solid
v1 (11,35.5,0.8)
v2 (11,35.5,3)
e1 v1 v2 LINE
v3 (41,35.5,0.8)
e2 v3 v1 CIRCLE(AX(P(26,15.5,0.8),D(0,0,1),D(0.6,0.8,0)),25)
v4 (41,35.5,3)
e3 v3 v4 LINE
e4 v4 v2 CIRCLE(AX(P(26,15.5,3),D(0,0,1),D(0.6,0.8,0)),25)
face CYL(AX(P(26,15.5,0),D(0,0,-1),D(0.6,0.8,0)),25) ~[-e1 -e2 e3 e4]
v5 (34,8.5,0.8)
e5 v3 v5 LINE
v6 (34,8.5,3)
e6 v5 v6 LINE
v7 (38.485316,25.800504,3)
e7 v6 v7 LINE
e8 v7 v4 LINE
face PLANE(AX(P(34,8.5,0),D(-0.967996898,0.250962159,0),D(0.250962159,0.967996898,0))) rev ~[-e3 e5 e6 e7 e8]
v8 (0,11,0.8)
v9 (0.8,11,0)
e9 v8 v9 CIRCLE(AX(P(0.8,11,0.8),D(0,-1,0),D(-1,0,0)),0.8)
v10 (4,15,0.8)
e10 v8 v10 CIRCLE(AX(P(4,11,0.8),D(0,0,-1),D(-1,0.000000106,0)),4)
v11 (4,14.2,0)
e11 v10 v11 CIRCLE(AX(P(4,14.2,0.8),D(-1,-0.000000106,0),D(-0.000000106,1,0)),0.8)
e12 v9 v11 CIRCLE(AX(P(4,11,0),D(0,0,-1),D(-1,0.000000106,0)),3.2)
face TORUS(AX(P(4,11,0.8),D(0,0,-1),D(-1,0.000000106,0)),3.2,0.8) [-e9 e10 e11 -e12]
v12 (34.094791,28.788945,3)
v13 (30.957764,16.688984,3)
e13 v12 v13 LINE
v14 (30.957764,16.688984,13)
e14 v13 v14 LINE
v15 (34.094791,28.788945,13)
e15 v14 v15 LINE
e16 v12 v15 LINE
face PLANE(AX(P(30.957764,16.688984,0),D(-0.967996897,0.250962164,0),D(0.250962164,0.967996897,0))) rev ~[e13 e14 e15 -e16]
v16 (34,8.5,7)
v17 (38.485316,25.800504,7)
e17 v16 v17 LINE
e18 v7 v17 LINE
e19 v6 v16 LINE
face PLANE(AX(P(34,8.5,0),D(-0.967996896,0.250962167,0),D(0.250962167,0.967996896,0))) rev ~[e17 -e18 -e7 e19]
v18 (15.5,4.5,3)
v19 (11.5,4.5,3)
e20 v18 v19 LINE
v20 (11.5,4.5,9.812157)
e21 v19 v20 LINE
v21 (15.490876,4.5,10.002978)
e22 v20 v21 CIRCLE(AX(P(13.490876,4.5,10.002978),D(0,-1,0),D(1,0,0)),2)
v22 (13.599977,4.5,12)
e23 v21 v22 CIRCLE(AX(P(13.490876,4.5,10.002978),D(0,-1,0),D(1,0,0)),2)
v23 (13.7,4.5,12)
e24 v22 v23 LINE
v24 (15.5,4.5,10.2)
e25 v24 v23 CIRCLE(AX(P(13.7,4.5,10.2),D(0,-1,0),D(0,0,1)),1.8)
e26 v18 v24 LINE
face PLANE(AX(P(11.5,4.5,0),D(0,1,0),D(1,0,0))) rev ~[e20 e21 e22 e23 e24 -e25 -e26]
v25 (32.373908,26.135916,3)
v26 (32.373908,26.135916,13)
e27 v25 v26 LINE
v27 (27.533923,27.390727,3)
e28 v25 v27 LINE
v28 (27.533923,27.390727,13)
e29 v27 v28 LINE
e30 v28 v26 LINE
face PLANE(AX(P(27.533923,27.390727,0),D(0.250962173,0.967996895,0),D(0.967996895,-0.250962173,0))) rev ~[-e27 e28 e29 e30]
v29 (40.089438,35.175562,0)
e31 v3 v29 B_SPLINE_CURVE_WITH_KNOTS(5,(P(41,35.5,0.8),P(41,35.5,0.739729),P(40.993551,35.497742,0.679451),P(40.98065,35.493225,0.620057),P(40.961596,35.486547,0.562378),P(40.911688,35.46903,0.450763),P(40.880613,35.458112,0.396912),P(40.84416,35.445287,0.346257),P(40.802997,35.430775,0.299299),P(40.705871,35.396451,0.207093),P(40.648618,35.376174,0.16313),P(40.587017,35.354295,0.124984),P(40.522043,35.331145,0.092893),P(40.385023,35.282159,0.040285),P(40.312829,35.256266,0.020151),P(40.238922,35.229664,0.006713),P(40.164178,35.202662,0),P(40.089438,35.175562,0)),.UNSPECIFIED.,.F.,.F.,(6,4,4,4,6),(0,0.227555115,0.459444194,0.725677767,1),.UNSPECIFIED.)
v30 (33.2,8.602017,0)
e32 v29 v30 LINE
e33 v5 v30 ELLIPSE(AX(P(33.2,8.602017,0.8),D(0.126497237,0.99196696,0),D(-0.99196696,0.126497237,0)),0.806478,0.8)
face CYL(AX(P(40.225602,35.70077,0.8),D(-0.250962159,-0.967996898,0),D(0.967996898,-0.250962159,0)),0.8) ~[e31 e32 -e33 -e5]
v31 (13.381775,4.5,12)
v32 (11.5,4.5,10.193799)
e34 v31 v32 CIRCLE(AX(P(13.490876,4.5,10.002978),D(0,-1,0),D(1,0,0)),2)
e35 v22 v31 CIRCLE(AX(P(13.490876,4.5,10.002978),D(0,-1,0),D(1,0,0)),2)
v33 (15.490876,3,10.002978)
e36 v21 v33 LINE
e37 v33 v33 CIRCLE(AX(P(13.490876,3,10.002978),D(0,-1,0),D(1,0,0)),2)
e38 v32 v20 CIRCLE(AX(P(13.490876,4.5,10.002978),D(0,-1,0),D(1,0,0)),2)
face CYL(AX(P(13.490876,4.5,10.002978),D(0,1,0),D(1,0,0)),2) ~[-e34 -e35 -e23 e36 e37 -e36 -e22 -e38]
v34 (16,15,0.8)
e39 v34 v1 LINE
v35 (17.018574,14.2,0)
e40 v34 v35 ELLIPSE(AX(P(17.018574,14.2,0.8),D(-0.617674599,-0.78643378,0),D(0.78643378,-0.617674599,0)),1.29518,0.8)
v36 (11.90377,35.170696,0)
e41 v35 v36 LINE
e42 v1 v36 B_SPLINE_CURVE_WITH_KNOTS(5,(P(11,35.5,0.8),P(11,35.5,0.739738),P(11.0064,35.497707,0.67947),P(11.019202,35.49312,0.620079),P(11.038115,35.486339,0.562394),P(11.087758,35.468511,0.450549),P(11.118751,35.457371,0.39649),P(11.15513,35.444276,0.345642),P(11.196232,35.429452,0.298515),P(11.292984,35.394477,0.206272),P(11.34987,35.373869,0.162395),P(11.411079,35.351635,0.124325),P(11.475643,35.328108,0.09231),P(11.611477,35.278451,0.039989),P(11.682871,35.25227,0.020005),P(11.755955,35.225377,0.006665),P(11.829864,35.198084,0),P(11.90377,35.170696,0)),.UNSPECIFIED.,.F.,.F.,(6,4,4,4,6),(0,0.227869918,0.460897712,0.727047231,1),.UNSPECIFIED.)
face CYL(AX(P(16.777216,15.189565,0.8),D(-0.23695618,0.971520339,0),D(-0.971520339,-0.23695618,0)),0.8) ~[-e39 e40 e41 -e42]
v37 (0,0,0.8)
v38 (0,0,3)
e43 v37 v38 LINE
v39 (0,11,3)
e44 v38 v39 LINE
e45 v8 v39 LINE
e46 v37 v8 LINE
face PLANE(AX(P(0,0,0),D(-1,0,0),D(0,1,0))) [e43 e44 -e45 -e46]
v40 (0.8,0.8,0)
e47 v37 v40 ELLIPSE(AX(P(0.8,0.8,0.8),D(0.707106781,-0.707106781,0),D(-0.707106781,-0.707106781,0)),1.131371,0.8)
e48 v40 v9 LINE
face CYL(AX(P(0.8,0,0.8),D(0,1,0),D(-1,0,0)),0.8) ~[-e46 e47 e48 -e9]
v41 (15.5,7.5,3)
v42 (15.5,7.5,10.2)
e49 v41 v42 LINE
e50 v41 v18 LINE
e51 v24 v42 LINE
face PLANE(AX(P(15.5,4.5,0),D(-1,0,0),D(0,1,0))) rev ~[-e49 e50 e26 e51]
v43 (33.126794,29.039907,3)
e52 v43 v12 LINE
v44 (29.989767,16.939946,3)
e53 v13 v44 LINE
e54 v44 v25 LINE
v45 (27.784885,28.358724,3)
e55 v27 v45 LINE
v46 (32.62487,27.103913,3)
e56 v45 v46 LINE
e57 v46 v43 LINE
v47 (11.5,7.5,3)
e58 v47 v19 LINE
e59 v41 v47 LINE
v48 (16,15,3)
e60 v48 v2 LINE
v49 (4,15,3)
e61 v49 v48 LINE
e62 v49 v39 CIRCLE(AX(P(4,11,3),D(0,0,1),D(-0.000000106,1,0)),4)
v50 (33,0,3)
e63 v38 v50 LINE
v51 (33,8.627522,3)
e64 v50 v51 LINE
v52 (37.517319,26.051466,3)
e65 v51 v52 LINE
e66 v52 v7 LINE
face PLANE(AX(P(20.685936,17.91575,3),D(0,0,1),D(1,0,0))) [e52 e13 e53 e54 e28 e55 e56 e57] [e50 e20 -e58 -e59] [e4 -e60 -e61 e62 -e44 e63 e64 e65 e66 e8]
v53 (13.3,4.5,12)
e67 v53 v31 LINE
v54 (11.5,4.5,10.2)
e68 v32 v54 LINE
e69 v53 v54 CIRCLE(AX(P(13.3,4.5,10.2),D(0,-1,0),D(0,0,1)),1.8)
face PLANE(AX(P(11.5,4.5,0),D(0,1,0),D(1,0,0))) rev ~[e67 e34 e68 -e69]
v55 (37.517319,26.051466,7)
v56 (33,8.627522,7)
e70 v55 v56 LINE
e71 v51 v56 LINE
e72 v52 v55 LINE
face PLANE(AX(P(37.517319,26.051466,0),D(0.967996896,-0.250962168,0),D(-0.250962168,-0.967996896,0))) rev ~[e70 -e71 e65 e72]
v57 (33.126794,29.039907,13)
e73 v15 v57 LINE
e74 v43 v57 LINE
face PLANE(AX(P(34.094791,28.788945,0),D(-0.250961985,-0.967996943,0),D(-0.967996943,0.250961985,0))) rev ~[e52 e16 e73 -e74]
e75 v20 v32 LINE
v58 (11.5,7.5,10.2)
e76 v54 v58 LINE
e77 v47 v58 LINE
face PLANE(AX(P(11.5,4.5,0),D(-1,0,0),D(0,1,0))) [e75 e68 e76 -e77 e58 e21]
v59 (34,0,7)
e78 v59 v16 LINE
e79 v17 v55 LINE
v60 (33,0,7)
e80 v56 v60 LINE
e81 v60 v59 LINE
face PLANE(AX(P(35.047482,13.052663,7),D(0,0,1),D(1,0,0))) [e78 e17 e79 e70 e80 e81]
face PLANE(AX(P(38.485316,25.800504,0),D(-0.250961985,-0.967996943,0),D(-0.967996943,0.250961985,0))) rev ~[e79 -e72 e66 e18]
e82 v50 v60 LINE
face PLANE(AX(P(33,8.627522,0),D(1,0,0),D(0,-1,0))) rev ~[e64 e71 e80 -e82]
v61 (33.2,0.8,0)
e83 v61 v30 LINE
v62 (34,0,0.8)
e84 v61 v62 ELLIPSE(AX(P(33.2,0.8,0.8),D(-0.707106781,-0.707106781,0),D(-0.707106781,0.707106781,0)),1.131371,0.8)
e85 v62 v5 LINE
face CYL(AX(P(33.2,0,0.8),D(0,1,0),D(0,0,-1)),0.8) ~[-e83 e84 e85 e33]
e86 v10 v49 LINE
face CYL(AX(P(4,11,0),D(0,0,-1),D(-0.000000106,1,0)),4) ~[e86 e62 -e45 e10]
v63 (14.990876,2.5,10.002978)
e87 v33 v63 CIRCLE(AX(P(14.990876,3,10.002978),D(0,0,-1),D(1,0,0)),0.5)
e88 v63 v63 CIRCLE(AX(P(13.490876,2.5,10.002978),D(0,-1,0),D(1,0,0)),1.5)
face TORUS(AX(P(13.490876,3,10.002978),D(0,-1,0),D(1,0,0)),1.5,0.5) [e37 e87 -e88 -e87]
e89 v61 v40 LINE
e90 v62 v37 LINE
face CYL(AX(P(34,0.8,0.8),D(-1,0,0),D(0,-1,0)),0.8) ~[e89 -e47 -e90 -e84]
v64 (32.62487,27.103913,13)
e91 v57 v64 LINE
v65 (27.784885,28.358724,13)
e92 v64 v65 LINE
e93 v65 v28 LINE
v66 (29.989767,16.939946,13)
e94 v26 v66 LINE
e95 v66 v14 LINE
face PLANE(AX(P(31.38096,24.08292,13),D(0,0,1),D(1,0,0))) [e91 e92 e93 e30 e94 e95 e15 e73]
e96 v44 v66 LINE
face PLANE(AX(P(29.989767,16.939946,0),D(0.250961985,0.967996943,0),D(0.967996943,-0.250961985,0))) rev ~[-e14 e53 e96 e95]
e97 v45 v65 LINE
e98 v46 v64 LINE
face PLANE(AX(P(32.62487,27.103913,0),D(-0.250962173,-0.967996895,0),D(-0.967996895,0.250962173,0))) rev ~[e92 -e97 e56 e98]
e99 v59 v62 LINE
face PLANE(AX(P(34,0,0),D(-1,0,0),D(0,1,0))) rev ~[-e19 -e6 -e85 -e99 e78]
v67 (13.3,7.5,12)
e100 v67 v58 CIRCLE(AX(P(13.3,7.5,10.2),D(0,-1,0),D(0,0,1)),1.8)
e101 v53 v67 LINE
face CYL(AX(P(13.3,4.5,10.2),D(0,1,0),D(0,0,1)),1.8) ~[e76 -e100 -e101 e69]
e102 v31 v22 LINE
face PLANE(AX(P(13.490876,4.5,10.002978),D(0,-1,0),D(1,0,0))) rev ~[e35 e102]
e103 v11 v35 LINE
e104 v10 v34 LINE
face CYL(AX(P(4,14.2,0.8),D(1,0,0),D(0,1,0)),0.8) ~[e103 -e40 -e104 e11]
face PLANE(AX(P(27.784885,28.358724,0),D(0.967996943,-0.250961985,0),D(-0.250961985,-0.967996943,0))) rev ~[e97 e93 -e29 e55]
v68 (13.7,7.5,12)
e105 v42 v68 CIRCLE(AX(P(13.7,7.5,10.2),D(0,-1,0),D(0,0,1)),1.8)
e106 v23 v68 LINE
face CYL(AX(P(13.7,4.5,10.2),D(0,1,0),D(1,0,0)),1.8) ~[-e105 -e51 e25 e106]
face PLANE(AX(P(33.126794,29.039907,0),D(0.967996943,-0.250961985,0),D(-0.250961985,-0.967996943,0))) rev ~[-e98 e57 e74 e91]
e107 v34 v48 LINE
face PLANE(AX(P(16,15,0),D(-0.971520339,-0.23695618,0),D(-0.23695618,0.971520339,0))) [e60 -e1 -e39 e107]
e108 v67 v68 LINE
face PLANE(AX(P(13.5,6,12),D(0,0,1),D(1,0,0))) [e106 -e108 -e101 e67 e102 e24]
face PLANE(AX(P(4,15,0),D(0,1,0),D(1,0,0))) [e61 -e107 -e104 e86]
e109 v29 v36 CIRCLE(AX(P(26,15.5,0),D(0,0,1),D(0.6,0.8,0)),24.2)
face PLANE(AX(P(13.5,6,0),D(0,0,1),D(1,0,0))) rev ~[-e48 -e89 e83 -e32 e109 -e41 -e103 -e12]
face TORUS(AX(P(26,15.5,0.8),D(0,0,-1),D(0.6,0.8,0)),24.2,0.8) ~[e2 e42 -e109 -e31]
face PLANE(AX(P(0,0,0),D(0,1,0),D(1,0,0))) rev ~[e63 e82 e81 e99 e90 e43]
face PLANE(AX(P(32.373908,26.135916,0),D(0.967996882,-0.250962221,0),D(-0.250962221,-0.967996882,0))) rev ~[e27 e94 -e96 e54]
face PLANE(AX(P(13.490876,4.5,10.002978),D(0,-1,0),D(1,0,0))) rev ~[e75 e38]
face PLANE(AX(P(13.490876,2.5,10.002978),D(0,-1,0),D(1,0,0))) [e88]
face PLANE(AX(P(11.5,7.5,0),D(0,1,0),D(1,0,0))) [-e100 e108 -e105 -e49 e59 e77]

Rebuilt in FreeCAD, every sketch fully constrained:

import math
import FreeCAD as App
import Part
import Sketcher
Q = App.Units.Quantity


def edges_at(feature, points):
    """Names of the edges that pass closest to the given points."""
    edges = feature.Shape.Edges
    near = lambda p: min(range(len(edges)), key=lambda i: edges[i].distToShape(Part.Vertex(*p))[0])
    return sorted({f"Edge{near(p) + 1}" for p in points})


def add_polygon(sketch, points):
    """Adds a closed chain of lines whose ends are joined by coincident constraints."""
    first, n = sketch.GeometryCount, len(points)
    for a, b in zip(points, points[1:] + points[:1]):
        sketch.addGeometry(Part.LineSegment(App.Vector(*a, 0), App.Vector(*b, 0)), False)
    for i in range(n):
        sketch.addConstraint(Sketcher.Constraint("Coincident", first + i, 2, first + (i + 1) % n, 1))

doc = App.newDocument("Part")
params = doc.addObject("Spreadsheet::Sheet", "Params")
for row, (alias, value) in enumerate([
    ("sketch1_radius", "25 mm"),
    ("sketch1_radius2", "4 mm"),
    ("sketch1_width", "34 mm"),
    ("sketch1_width2", "12 mm"),
    ("sketch1_height", "11 mm"),
    ("pad1_length", "3 mm"),
    ("sketch2_length", "1 mm"),
    ("sketch2_length2", "2 mm"),
    ("sketch2_length3", "5.000001 mm"),
    ("sketch2_length4", "12.5 mm"),
    ("pad2_length", "13 mm"),
    ("sketch3_width", "4 mm"),
    ("sketch3_height", "3 mm"),
    ("pad3_length", "12 mm"),
    ("sketch4_width", "1 mm"),
    ("sketch4_length", "1 mm"),
    ("sketch4_length2", "18 mm"),
    ("sketch4_height", "8.5 mm"),
    ("pad4_length", "7 mm"),
    ("sketch5_diameter", "4 mm"),
    ("pad5_length", "2 mm"),
    ("fillet_radius", "1.8 mm"),
    ("fillet2_radius", "0.5 mm"),
    ("fillet3_radius", "0.8 mm"),
], start=1):
    params.set(f"A{row}", alias)
    params.set(f"B{row}", "=" + value)
    params.setAlias(f"B{row}", alias)

body = doc.addObject("PartDesign::Body", "Body")

# Sketch on XY plane
sketch1 = body.newObject("Sketcher::SketchObject", "Sketch")
sketch1.AttachmentSupport = (doc.getObject("XY_Plane"), [""])
sketch1.MapMode = "FlatFace"
sketch1.addGeometry(Part.LineSegment(App.Vector(0, 0, 0), App.Vector(34, 0, 0)), False)
sketch1.addGeometry(Part.LineSegment(App.Vector(34, 0, 0), App.Vector(34, 8.5, 0)), False)
sketch1.addGeometry(Part.LineSegment(App.Vector(34, 8.5, 0), App.Vector(41, 35.5, 0)), False)
sketch1.addGeometry(Part.ArcOfCircle(Part.Circle(App.Vector(26, 15.5, 0), App.Vector(0, 0, 1), 25), math.radians(53.130102), math.radians(126.869898)), False)
sketch1.addGeometry(Part.LineSegment(App.Vector(11, 35.5, 0), App.Vector(16, 15, 0)), False)
sketch1.addGeometry(Part.LineSegment(App.Vector(16, 15, 0), App.Vector(4, 15, 0)), False)
sketch1.addGeometry(Part.ArcOfCircle(Part.Circle(App.Vector(4, 11, 0), App.Vector(0, 0, 1), 4), math.radians(90.000006), math.radians(179.999994)), False)
sketch1.addGeometry(Part.LineSegment(App.Vector(0, 11, 0), App.Vector(0, 0, 0)), False)
sketch1.addConstraint(Sketcher.Constraint("Coincident", 0, 2, 1, 1))
sketch1.addConstraint(Sketcher.Constraint("Coincident", 1, 2, 2, 1))
sketch1.addConstraint(Sketcher.Constraint("Coincident", 2, 2, 3, 1))
sketch1.addConstraint(Sketcher.Constraint("Coincident", 3, 2, 4, 1))
sketch1.addConstraint(Sketcher.Constraint("Coincident", 4, 2, 5, 1))
sketch1.addConstraint(Sketcher.Constraint("Tangent", 5, 2, 6, 1))
sketch1.addConstraint(Sketcher.Constraint("Tangent", 6, 2, 7, 1))
sketch1.addConstraint(Sketcher.Constraint("Coincident", 7, 2, 0, 1))
sketch1.addConstraint(Sketcher.Constraint("Horizontal", 0))
sketch1.addConstraint(Sketcher.Constraint("Vertical", 1))
sketch1.addConstraint(Sketcher.Constraint("Horizontal", 5))
sketch1.addConstraint(Sketcher.Constraint("Vertical", 7))
sketch1.addConstraint(Sketcher.Constraint("Coincident", 7, 2, -1, 1))
sketch1.addConstraint(Sketcher.Constraint("Horizontal", 2, 2, 3, 2))
sketch1.addConstraint(Sketcher.Constraint("Radius", 3, Q("25 mm")))
sketch1.addConstraint(Sketcher.Constraint("Radius", 6, Q("4 mm")))
sketch1.addConstraint(Sketcher.Constraint("DistanceX", 0, 1, 0, 2, Q("34 mm")))
sketch1.addConstraint(Sketcher.Constraint("DistanceX", 5, 2, 5, 1, Q("12 mm")))
sketch1.addConstraint(Sketcher.Constraint("DistanceY", 7, 2, 7, 1, Q("11 mm")))
sketch1.addConstraint(Sketcher.Constraint("DistanceY", 1, 1, 1, 2, Q("8.5 mm")))
sketch1.addConstraint(Sketcher.Constraint("DistanceX", -1, 1, 3, 3, Q("26 mm")))
sketch1.addConstraint(Sketcher.Constraint("DistanceX", -1, 1, 2, 2, Q("41 mm")))
sketch1.addConstraint(Sketcher.Constraint("DistanceY", 1, 2, 3, 3, Q("7 mm")))
sketch1.setExpression("Constraints[14]", "Params.sketch1_radius")
sketch1.setExpression("Constraints[15]", "Params.sketch1_radius2")
sketch1.setExpression("Constraints[16]", "Params.sketch1_width")
sketch1.setExpression("Constraints[17]", "Params.sketch1_width2")
sketch1.setExpression("Constraints[18]", "Params.sketch1_height")
pad1 = body.newObject("PartDesign::Pad", "Pad")
pad1.Profile = sketch1
pad1.setExpression("Length", "Params.pad1_length")

# Sketch on XY plane
sketch2 = body.newObject("Sketcher::SketchObject", "Sketch001")
sketch2.AttachmentSupport = (doc.getObject("XY_Plane"), [""])
sketch2.MapMode = "FlatFace"
add_polygon(sketch2, [(30.957764, 16.688984), (34.094791, 28.788945), (33.126794, 29.039907), (32.62487, 27.103913), (27.784885, 28.358724), (27.533923, 27.390727), (32.373908, 26.135916), (29.989767, 16.939946)])  # lines 0-7
sketch2.addConstraint(Sketcher.Constraint("Perpendicular", 0, 1))
sketch2.addConstraint(Sketcher.Constraint("Perpendicular", 1, 2))
sketch2.addConstraint(Sketcher.Constraint("Perpendicular", 2, 3))
sketch2.addConstraint(Sketcher.Constraint("Perpendicular", 3, 4))
sketch2.addConstraint(Sketcher.Constraint("Perpendicular", 4, 5))
sketch2.addConstraint(Sketcher.Constraint("Perpendicular", 5, 6))
sketch2.addConstraint(Sketcher.Constraint("Perpendicular", 6, 7))
sketch2.addConstraint(Sketcher.Constraint("Equal", 1, 4))
sketch2.addConstraint(Sketcher.Constraint("Equal", 3, 5))
sketch2.addConstraint(Sketcher.Constraint("Distance", 1, Q("1 mm")))
sketch2.addConstraint(Sketcher.Constraint("Distance", 2, Q("2 mm")))
sketch2.addConstraint(Sketcher.Constraint("Distance", 3, Q("5.000001 mm")))
sketch2.addConstraint(Sketcher.Constraint("Distance", 0, Q("12.5 mm")))
sketch2.addConstraint(Sketcher.Constraint("DistanceX", -1, 1, 0, 2, Q("34.094791 mm")))
sketch2.addConstraint(Sketcher.Constraint("DistanceX", -1, 1, 2, 2, Q("32.62487 mm")))
sketch2.addConstraint(Sketcher.Constraint("DistanceY", -1, 1, 0, 2, Q("28.788945 mm")))
sketch2.setExpression("Constraints[17]", "Params.sketch2_length")
sketch2.setExpression("Constraints[18]", "Params.sketch2_length2")
sketch2.setExpression("Constraints[19]", "Params.sketch2_length3")
sketch2.setExpression("Constraints[20]", "Params.sketch2_length4")
pad2 = body.newObject("PartDesign::Pad", "Pad001")
pad2.Profile = sketch2
pad2.setExpression("Length", "Params.pad2_length")

# Sketch on XY plane
sketch3 = body.newObject("Sketcher::SketchObject", "Sketch002")
sketch3.AttachmentSupport = (doc.getObject("XY_Plane"), [""])
sketch3.MapMode = "FlatFace"
add_polygon(sketch3, [(11.5, 7.5), (11.5, 4.5), (15.5, 4.5), (15.5, 7.5)])  # lines 0-3
sketch3.addConstraint(Sketcher.Constraint("Vertical", 0))
sketch3.addConstraint(Sketcher.Constraint("Horizontal", 1))
sketch3.addConstraint(Sketcher.Constraint("Vertical", 2))
sketch3.addConstraint(Sketcher.Constraint("Horizontal", 3))
sketch3.addConstraint(Sketcher.Constraint("DistanceX", 1, 1, 1, 2, Q("4 mm")))
sketch3.addConstraint(Sketcher.Constraint("DistanceY", 0, 2, 0, 1, Q("3 mm")))
sketch3.addConstraint(Sketcher.Constraint("DistanceX", -1, 1, 0, 2, Q("11.5 mm")))
sketch3.addConstraint(Sketcher.Constraint("DistanceY", -1, 1, 0, 2, Q("4.5 mm")))
sketch3.setExpression("Constraints[8]", "Params.sketch3_width")
sketch3.setExpression("Constraints[9]", "Params.sketch3_height")
pad3 = body.newObject("PartDesign::Pad", "Pad002")
pad3.Profile = sketch3
pad3.setExpression("Length", "Params.pad3_length")

# Sketch on XY plane
sketch4 = body.newObject("Sketcher::SketchObject", "Sketch003")
sketch4.AttachmentSupport = (doc.getObject("XY_Plane"), [""])
sketch4.MapMode = "FlatFace"
add_polygon(sketch4, [(34, 0), (34, 8.5), (38.485316, 25.800504), (37.517319, 26.051466), (33, 8.627522), (33, 0)])  # lines 0-5
sketch4.addConstraint(Sketcher.Constraint("Vertical", 0))
sketch4.addConstraint(Sketcher.Constraint("Vertical", 4))
sketch4.addConstraint(Sketcher.Constraint("Horizontal", 5))
sketch4.addConstraint(Sketcher.Constraint("PointOnObject", 4, 2, -1))
sketch4.addConstraint(Sketcher.Constraint("Perpendicular", 1, 2))
sketch4.addConstraint(Sketcher.Constraint("Perpendicular", 2, 3))
sketch4.addConstraint(Sketcher.Constraint("DistanceX", 5, 1, 5, 2, Q("1 mm")))
sketch4.addConstraint(Sketcher.Constraint("Distance", 2, Q("1 mm")))
sketch4.addConstraint(Sketcher.Constraint("Distance", 3, Q("18 mm")))
sketch4.addConstraint(Sketcher.Constraint("DistanceY", 0, 1, 0, 2, Q("8.5 mm")))
sketch4.addConstraint(Sketcher.Constraint("DistanceX", -1, 1, 0, 2, Q("34 mm")))
sketch4.addConstraint(Sketcher.Constraint("Distance", 1, Q("17.872479 mm")))
sketch4.setExpression("Constraints[12]", "Params.sketch4_width")
sketch4.setExpression("Constraints[13]", "Params.sketch4_length")
sketch4.setExpression("Constraints[14]", "Params.sketch4_length2")
sketch4.setExpression("Constraints[15]", "Params.sketch4_height")
pad4 = body.newObject("PartDesign::Pad", "Pad003")
pad4.Profile = sketch4
pad4.setExpression("Length", "Params.pad4_length")

# Sketch on XZ plane
sketch5 = body.newObject("Sketcher::SketchObject", "Sketch004")
sketch5.AttachmentSupport = (doc.getObject("XZ_Plane"), [""])
sketch5.MapMode = "FlatFace"
sketch5.AttachmentOffset = App.Placement(App.Vector(0, 0, -4.5), App.Rotation())
sketch5.addGeometry(Part.Circle(App.Vector(13.490876, 10.002978, 0), App.Vector(0, 0, 1), 2), False)
sketch5.addConstraint(Sketcher.Constraint("Diameter", 0, Q("4 mm")))
sketch5.addConstraint(Sketcher.Constraint("DistanceX", -1, 1, 0, 3, Q("13.490876 mm")))
sketch5.addConstraint(Sketcher.Constraint("DistanceY", -1, 1, 0, 3, Q("10.002978 mm")))
sketch5.setExpression("Constraints[0]", "Params.sketch5_diameter")
pad5 = body.newObject("PartDesign::Pad", "Pad004")
pad5.Profile = sketch5
pad5.setExpression("Length", "Params.pad5_length")
doc.recompute()

fillet = body.newObject("PartDesign::Fillet", "Fillet")
fillet.Base = (pad5, edges_at(pad5, [(11.5, 6, 12), (15.5, 6, 12)]))
fillet.setExpression("Radius", "Params.fillet_radius")
doc.recompute()

fillet2 = body.newObject("PartDesign::Fillet", "Fillet001")
fillet2.Base = (fillet, edges_at(fillet, [(11.491, 2.5, 10.003)]))
fillet2.setExpression("Radius", "Params.fillet2_radius")
doc.recompute()

fillet3 = body.newObject("PartDesign::Fillet", "Fillet002")
fillet3.Base = (fillet2, edges_at(fillet2, [
    (37.5, 22, 0),
    (34, 4.25, 0),
    (17, 0, 0),
    (17, 0, 0),
    (0, 5.5, 0),
    (1.172, 13.828, 0),
    (10, 15, 0),
    (13.5, 25.25, 0),
    (26, 40.5, 0),
    (37.5, 22, 0),
]))
fillet3.setExpression("Radius", "Params.fillet3_radius")

doc.recompute()
